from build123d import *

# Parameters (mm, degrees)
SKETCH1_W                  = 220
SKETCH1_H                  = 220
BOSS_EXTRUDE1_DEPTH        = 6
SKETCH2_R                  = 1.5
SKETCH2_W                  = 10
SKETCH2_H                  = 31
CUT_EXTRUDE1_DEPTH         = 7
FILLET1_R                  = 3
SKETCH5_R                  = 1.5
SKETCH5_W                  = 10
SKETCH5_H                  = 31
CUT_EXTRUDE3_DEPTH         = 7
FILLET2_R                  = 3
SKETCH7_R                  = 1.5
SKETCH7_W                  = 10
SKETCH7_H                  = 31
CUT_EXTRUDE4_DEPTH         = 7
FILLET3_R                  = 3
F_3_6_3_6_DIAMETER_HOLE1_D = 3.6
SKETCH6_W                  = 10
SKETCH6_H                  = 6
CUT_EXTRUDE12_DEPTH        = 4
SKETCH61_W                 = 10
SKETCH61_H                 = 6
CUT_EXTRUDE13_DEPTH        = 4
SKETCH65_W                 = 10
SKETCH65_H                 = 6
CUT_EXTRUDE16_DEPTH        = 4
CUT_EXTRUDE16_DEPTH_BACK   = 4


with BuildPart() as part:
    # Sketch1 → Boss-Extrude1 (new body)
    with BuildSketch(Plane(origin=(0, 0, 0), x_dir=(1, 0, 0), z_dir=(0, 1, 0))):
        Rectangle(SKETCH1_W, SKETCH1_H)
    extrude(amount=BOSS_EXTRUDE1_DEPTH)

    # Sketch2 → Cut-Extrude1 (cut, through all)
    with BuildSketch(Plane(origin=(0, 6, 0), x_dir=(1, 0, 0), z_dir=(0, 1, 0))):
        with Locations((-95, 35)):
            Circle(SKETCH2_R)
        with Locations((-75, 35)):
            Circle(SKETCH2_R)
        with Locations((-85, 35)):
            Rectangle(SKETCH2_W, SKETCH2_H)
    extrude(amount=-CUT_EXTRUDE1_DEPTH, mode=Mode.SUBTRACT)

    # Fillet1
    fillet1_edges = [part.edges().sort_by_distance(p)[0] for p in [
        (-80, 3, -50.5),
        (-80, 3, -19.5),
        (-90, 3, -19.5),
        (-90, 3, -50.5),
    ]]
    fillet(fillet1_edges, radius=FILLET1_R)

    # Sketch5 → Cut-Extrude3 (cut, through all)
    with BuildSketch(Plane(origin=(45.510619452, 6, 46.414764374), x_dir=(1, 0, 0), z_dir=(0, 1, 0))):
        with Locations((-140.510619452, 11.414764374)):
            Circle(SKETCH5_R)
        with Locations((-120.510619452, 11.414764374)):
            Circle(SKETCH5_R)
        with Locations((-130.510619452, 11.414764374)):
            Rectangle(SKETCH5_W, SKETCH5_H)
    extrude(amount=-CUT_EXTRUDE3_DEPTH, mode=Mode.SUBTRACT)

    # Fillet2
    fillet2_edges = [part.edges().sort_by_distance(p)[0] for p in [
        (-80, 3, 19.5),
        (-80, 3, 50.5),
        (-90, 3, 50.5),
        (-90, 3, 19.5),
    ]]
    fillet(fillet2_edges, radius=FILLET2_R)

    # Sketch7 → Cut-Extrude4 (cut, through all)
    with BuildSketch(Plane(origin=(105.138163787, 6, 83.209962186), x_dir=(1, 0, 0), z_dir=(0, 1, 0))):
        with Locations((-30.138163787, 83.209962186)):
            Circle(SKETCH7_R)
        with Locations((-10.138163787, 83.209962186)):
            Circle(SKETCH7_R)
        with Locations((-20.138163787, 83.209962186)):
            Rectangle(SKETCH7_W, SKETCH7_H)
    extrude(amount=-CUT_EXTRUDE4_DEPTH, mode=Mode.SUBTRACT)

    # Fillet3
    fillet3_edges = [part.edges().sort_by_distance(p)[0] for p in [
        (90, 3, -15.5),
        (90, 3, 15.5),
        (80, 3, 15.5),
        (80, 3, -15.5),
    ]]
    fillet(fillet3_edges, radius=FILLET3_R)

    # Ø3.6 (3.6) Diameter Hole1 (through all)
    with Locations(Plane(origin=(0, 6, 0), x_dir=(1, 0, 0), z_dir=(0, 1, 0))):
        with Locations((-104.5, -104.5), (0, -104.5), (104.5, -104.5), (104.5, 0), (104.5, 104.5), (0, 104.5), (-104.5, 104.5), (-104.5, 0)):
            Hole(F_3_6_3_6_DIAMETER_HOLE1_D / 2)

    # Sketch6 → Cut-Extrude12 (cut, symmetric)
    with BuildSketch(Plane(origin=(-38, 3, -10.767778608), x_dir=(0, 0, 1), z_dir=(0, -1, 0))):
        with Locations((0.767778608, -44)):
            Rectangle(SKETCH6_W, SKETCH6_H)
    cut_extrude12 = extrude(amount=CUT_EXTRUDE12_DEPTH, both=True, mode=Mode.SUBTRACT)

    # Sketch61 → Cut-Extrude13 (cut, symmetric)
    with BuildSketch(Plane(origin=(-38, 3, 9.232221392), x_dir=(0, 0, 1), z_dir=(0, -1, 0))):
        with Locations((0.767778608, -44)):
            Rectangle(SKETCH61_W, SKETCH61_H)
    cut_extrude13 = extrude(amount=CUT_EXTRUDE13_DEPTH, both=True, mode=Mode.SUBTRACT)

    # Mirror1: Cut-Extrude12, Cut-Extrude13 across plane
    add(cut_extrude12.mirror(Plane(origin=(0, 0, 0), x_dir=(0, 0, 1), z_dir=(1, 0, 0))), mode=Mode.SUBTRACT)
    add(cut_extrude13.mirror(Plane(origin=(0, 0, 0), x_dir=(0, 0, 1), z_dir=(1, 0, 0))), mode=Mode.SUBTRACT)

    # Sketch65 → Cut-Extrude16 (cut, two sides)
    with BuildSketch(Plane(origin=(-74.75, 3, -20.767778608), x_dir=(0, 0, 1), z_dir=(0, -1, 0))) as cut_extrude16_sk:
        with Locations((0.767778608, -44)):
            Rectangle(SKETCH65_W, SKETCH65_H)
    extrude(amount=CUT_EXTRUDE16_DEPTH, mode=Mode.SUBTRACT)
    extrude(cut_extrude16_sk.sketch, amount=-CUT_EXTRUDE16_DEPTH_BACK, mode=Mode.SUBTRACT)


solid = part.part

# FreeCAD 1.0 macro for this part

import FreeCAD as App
import Part
import Sketcher


def edges_at(feature, points):
    """Names of the edges that pass closest to the given points."""
    edges = feature.Shape.Edges
    near = lambda p: min(range(len(edges)), key=lambda i: edges[i].distToShape(Part.Vertex(*p))[0])
    return sorted({f"Edge{near(p) + 1}" for p in points})

doc = App.newDocument("Part")
body = doc.addObject("PartDesign::Body", "Body")

# Sketch on XZ plane
sketch1 = body.newObject("Sketcher::SketchObject", "Sketch")
sketch1.AttachmentSupport = (doc.getObject("XZ_Plane"), [""])
sketch1.MapMode = "FlatFace"
sketch1.addGeometry([
    Part.LineSegment(App.Vector(-110, -110, 0), App.Vector(-110, 110, 0)),
    Part.LineSegment(App.Vector(-110, 110, 0), App.Vector(110, 110, 0)),
    Part.LineSegment(App.Vector(110, 110, 0), App.Vector(110, -110, 0)),
    Part.LineSegment(App.Vector(110, -110, 0), App.Vector(-110, -110, 0)),
], False)
sketch1.addConstraint([
    Sketcher.Constraint("Coincident", 0, 2, 1, 1),
    Sketcher.Constraint("Coincident", 1, 2, 2, 1),
    Sketcher.Constraint("Coincident", 2, 2, 3, 1),
    Sketcher.Constraint("Coincident", 3, 2, 0, 1),
    Sketcher.Constraint("Vertical", 0),
    Sketcher.Constraint("Horizontal", 1),
    Sketcher.Constraint("Vertical", 2),
    Sketcher.Constraint("Horizontal", 3),
    Sketcher.Constraint("Symmetric", 0, 2, 2, 2, -1, 1),
    Sketcher.Constraint("Equal", 3, 0),
    Sketcher.Constraint("DistanceX", 1, 1, 1, 2, 220.0),
])
pad1 = body.newObject("PartDesign::Pad", "Pad")
pad1.Profile = sketch1
pad1.Length = 6
pad1.Reversed = True

# Sketch on XZ plane
sketch2 = body.newObject("Sketcher::SketchObject", "Sketch001")
sketch2.AttachmentSupport = (doc.getObject("XZ_Plane"), [""])
sketch2.MapMode = "FlatFace"
sketch2.AttachmentOffset = App.Placement(App.Vector(0, 0, -6), App.Rotation())
sketch2.addGeometry([
    Part.Circle(App.Vector(-95, -35, 0), App.Vector(0, 0, 1), 1.5),  # 0
    Part.Circle(App.Vector(-75, -35, 0), App.Vector(0, 0, 1), 1.5),  # 1
    Part.LineSegment(App.Vector(-90, -50.5, 0), App.Vector(-90, -19.5, 0)),  # 2
    Part.LineSegment(App.Vector(-90, -19.5, 0), App.Vector(-80, -19.5, 0)),  # 3
    Part.LineSegment(App.Vector(-80, -19.5, 0), App.Vector(-80, -50.5, 0)),  # 4
    Part.LineSegment(App.Vector(-80, -50.5, 0), App.Vector(-90, -50.5, 0)),  # 5
], False)
sketch2.addConstraint([
    Sketcher.Constraint("Coincident", 2, 2, 3, 1),
    Sketcher.Constraint("Coincident", 3, 2, 4, 1),
    Sketcher.Constraint("Coincident", 4, 2, 5, 1),
    Sketcher.Constraint("Coincident", 5, 2, 2, 1),
    Sketcher.Constraint("Vertical", 2),
    Sketcher.Constraint("Horizontal", 3),
    Sketcher.Constraint("Vertical", 4),
    Sketcher.Constraint("Horizontal", 5),
    Sketcher.Constraint("Equal", 0, 1),
    Sketcher.Constraint("Horizontal", 0, 3, 1, 3),
    Sketcher.Constraint("Diameter", 0, 3.0),
    Sketcher.Constraint("DistanceX", 3, 1, 3, 2, 10.0),
    Sketcher.Constraint("DistanceY", 2, 1, 2, 2, 31.0),
    Sketcher.Constraint("DistanceX", 0, 3, -1, 1, 95.0),
    Sketcher.Constraint("DistanceY", 0, 3, -1, 1, 35.0),
    Sketcher.Constraint("DistanceX", 1, 3, -1, 1, 75.0),
    Sketcher.Constraint("DistanceX", 2, 2, -1, 1, 90.0),
    Sketcher.Constraint("DistanceY", 2, 2, -1, 1, 19.5),
])
pocket1 = body.newObject("PartDesign::Pocket", "Pocket")
pocket1.Profile = sketch2
pocket1.Type = "ThroughAll"
pocket1.Reversed = True
doc.recompute()

fillet = body.newObject("PartDesign::Fillet", "Fillet")
fillet.Base = (pocket1, edges_at(pocket1, [
    (-80, 3, -50.5),
    (-80, 3, -19.5),
    (-90, 3, -19.5),
    (-90, 3, -50.5),
]))
fillet.Radius = 3

# Sketch on XZ plane
sketch3 = body.newObject("Sketcher::SketchObject", "Sketch002")
sketch3.AttachmentSupport = (doc.getObject("XZ_Plane"), [""])
sketch3.MapMode = "FlatFace"
sketch3.AttachmentOffset = App.Placement(App.Vector(0, 0, -6), App.Rotation())
sketch3.addGeometry([
    Part.Circle(App.Vector(-95, 35, 0), App.Vector(0, 0, 1), 1.5),  # 0
    Part.Circle(App.Vector(-75, 35, 0), App.Vector(0, 0, 1), 1.5),  # 1
    Part.LineSegment(App.Vector(-90, 19.5, 0), App.Vector(-90, 50.5, 0)),  # 2
    Part.LineSegment(App.Vector(-90, 50.5, 0), App.Vector(-80, 50.5, 0)),  # 3
    Part.LineSegment(App.Vector(-80, 50.5, 0), App.Vector(-80, 19.5, 0)),  # 4
    Part.LineSegment(App.Vector(-80, 19.5, 0), App.Vector(-90, 19.5, 0)),  # 5
], False)
sketch3.addConstraint([
    Sketcher.Constraint("Coincident", 2, 2, 3, 1),
    Sketcher.Constraint("Coincident", 3, 2, 4, 1),
    Sketcher.Constraint("Coincident", 4, 2, 5, 1),
    Sketcher.Constraint("Coincident", 5, 2, 2, 1),
    Sketcher.Constraint("Vertical", 2),
    Sketcher.Constraint("Horizontal", 3),
    Sketcher.Constraint("Vertical", 4),
    Sketcher.Constraint("Horizontal", 5),
    Sketcher.Constraint("Equal", 0, 1),
    Sketcher.Constraint("Horizontal", 0, 3, 1, 3),
    Sketcher.Constraint("Diameter", 0, 3.0),
    Sketcher.Constraint("DistanceX", 3, 1, 3, 2, 10.0),
    Sketcher.Constraint("DistanceY", 2, 1, 2, 2, 31.0),
    Sketcher.Constraint("DistanceX", 0, 3, -1, 1, 95.0),
    Sketcher.Constraint("DistanceY", -1, 1, 0, 3, 35.0),
    Sketcher.Constraint("DistanceX", 1, 3, -1, 1, 75.0),
    Sketcher.Constraint("DistanceX", 2, 2, -1, 1, 90.0),
    Sketcher.Constraint("DistanceY", -1, 1, 2, 2, 50.5),
])
pocket2 = body.newObject("PartDesign::Pocket", "Pocket001")
pocket2.Profile = sketch3
pocket2.Type = "ThroughAll"
pocket2.Reversed = True
doc.recompute()

fillet2 = body.newObject("PartDesign::Fillet", "Fillet001")
fillet2.Base = (pocket2, edges_at(pocket2, [
    (-80, 3, 19.5),
    (-80, 3, 50.5),
    (-90, 3, 50.5),
    (-90, 3, 19.5),
]))
fillet2.Radius = 3

# Sketch on XZ plane
sketch4 = body.newObject("Sketcher::SketchObject", "Sketch003")
sketch4.AttachmentSupport = (doc.getObject("XZ_Plane"), [""])
sketch4.MapMode = "FlatFace"
sketch4.AttachmentOffset = App.Placement(App.Vector(0, 0, -6), App.Rotation())
sketch4.addGeometry([
    Part.Circle(App.Vector(75, 0, 0), App.Vector(0, 0, 1), 1.5),  # 0
    Part.Circle(App.Vector(95, 0, 0), App.Vector(0, 0, 1), 1.5),  # 1
    Part.LineSegment(App.Vector(80, -15.5, 0), App.Vector(80, 15.5, 0)),  # 2
    Part.LineSegment(App.Vector(80, 15.5, 0), App.Vector(90, 15.5, 0)),  # 3
    Part.LineSegment(App.Vector(90, 15.5, 0), App.Vector(90, -15.5, 0)),  # 4
    Part.LineSegment(App.Vector(90, -15.5, 0), App.Vector(80, -15.5, 0)),  # 5
], False)
sketch4.addConstraint([
    Sketcher.Constraint("Coincident", 2, 2, 3, 1),
    Sketcher.Constraint("Coincident", 3, 2, 4, 1),
    Sketcher.Constraint("Coincident", 4, 2, 5, 1),
    Sketcher.Constraint("Coincident", 5, 2, 2, 1),
    Sketcher.Constraint("Vertical", 2),
    Sketcher.Constraint("Horizontal", 3),
    Sketcher.Constraint("Vertical", 4),
    Sketcher.Constraint("Horizontal", 5),
    Sketcher.Constraint("Equal", 0, 1),
    Sketcher.Constraint("PointOnObject", 0, 3, -1),
    Sketcher.Constraint("PointOnObject", 1, 3, -1),
    Sketcher.Constraint("Diameter", 0, 3.0),
    Sketcher.Constraint("DistanceX", 3, 1, 3, 2, 10.0),
    Sketcher.Constraint("DistanceY", 2, 1, 2, 2, 31.0),
    Sketcher.Constraint("DistanceX", -1, 1, 0, 3, 75.0),
    Sketcher.Constraint("DistanceX", -1, 1, 1, 3, 95.0),
    Sketcher.Constraint("DistanceX", -1, 1, 2, 2, 80.0),
    Sketcher.Constraint("DistanceY", -1, 1, 2, 2, 15.5),
])
pocket3 = body.newObject("PartDesign::Pocket", "Pocket002")
pocket3.Profile = sketch4
pocket3.Type = "ThroughAll"
pocket3.Reversed = True
doc.recompute()

fillet3 = body.newObject("PartDesign::Fillet", "Fillet002")
fillet3.Base = (pocket3, edges_at(pocket3, [
    (90, 3, -15.5),
    (90, 3, 15.5),
    (80, 3, 15.5),
    (80, 3, -15.5),
]))
fillet3.Radius = 3

# Sketch on XZ plane
sketch5 = body.newObject("Sketcher::SketchObject", "Sketch004")
sketch5.AttachmentSupport = (doc.getObject("XZ_Plane"), [""])
sketch5.MapMode = "FlatFace"
sketch5.AttachmentOffset = App.Placement(App.Vector(0, 0, -6), App.Rotation())
sketch5.addGeometry([
    Part.Circle(App.Vector(-104.5, 104.5, 0), App.Vector(0, 0, 1), 1.8),  # 0
    Part.Circle(App.Vector(0, 104.5, 0), App.Vector(0, 0, 1), 1.8),  # 1
    Part.Circle(App.Vector(104.5, 104.5, 0), App.Vector(0, 0, 1), 1.8),  # 2
    Part.Circle(App.Vector(104.5, 0, 0), App.Vector(0, 0, 1), 1.8),  # 3
    Part.Circle(App.Vector(104.5, -104.5, 0), App.Vector(0, 0, 1), 1.8),  # 4
    Part.Circle(App.Vector(0, -104.5, 0), App.Vector(0, 0, 1), 1.8),  # 5
    Part.Circle(App.Vector(-104.5, -104.5, 0), App.Vector(0, 0, 1), 1.8),  # 6
    Part.Circle(App.Vector(-104.5, 0, 0), App.Vector(0, 0, 1), 1.8),  # 7
], False)
sketch5.addConstraint([
    Sketcher.Constraint("Equal", 0, 1),
    Sketcher.Constraint("Equal", 1, 2),
    Sketcher.Constraint("Equal", 2, 3),
    Sketcher.Constraint("Equal", 3, 4),
    Sketcher.Constraint("Equal", 4, 5),
    Sketcher.Constraint("Equal", 5, 6),
    Sketcher.Constraint("Equal", 6, 7),
    Sketcher.Constraint("Symmetric", 0, 3, 4, 3, -1, 1),
    Sketcher.Constraint("Symmetric", 1, 3, 5, 3, -1, 1),
    Sketcher.Constraint("Symmetric", 2, 3, 6, 3, -1, 1),
    Sketcher.Constraint("Symmetric", 3, 3, 7, 3, -1, 1),
    Sketcher.Constraint("Symmetric", 0, 3, 2, 3, -2),
    Sketcher.Constraint("PointOnObject", 1, 3, -2),
    Sketcher.Constraint("PointOnObject", 3, 3, -1),
    Sketcher.Constraint("Horizontal", 0, 3, 1, 3),
    Sketcher.Constraint("Vertical", 2, 3, 3, 3),
    Sketcher.Constraint("Diameter", 0, 3.6),
    Sketcher.Constraint("DistanceX", 0, 3, 2, 3, 209.0),
    Sketcher.Constraint("DistanceY", 4, 3, 2, 3, 209.0),
])
doc.recompute()
hole = body.newObject("PartDesign::Hole", "Hole")
hole.Profile = sketch5
hole.ThreadType = "None"
hole.Diameter = 3.6
hole.DepthType = "ThroughAll"
hole.Reversed = True

# Sketch on XZ plane
sketch6 = body.newObject("Sketcher::SketchObject", "Sketch005")
sketch6.AttachmentSupport = (doc.getObject("XZ_Plane"), [""])
sketch6.MapMode = "FlatFace"
sketch6.AttachmentOffset = App.Placement(App.Vector(0, 0, -3), App.Rotation())
sketch6.addGeometry([
    Part.LineSegment(App.Vector(3, -15, 0), App.Vector(9, -15, 0)),
    Part.LineSegment(App.Vector(9, -15, 0), App.Vector(9, -5, 0)),
    Part.LineSegment(App.Vector(9, -5, 0), App.Vector(3, -5, 0)),
    Part.LineSegment(App.Vector(3, -5, 0), App.Vector(3, -15, 0)),
], False)
sketch6.addConstraint([
    Sketcher.Constraint("Coincident", 0, 2, 1, 1),
    Sketcher.Constraint("Coincident", 1, 2, 2, 1),
    Sketcher.Constraint("Coincident", 2, 2, 3, 1),
    Sketcher.Constraint("Coincident", 3, 2, 0, 1),
    Sketcher.Constraint("Horizontal", 0),
    Sketcher.Constraint("Vertical", 1),
    Sketcher.Constraint("Horizontal", 2),
    Sketcher.Constraint("Vertical", 3),
    Sketcher.Constraint("DistanceX", 0, 1, 0, 2, 6.0),
    Sketcher.Constraint("DistanceY", 1, 1, 1, 2, 10.0),
    Sketcher.Constraint("DistanceX", -1, 1, 0, 2, 9.0),
    Sketcher.Constraint("DistanceY", 0, 2, -1, 1, 15.0),
])
pocket4 = body.newObject("PartDesign::Pocket", "Pocket003")
pocket4.Profile = sketch6
pocket4.Length = 8
pocket4.Midplane = True

# Sketch on XZ plane
sketch7 = body.newObject("Sketcher::SketchObject", "Sketch006")
sketch7.AttachmentSupport = (doc.getObject("XZ_Plane"), [""])
sketch7.MapMode = "FlatFace"
sketch7.AttachmentOffset = App.Placement(App.Vector(0, 0, -3), App.Rotation())
sketch7.addGeometry([
    Part.LineSegment(App.Vector(3, 5, 0), App.Vector(9, 5, 0)),
    Part.LineSegment(App.Vector(9, 5, 0), App.Vector(9, 15, 0)),
    Part.LineSegment(App.Vector(9, 15, 0), App.Vector(3, 15, 0)),
    Part.LineSegment(App.Vector(3, 15, 0), App.Vector(3, 5, 0)),
], False)
sketch7.addConstraint([
    Sketcher.Constraint("Coincident", 0, 2, 1, 1),
    Sketcher.Constraint("Coincident", 1, 2, 2, 1),
    Sketcher.Constraint("Coincident", 2, 2, 3, 1),
    Sketcher.Constraint("Coincident", 3, 2, 0, 1),
    Sketcher.Constraint("Horizontal", 0),
    Sketcher.Constraint("Vertical", 1),
    Sketcher.Constraint("Horizontal", 2),
    Sketcher.Constraint("Vertical", 3),
    Sketcher.Constraint("DistanceX", 0, 1, 0, 2, 6.0),
    Sketcher.Constraint("DistanceY", 1, 1, 1, 2, 10.0),
    Sketcher.Constraint("DistanceX", -1, 1, 0, 2, 9.0),
    Sketcher.Constraint("DistanceY", -1, 1, 0, 2, 5.0),
])
pocket5 = body.newObject("PartDesign::Pocket", "Pocket004")
pocket5.Profile = sketch7
pocket5.Length = 8
pocket5.Midplane = True
doc.recompute()

mirrored = body.newObject("PartDesign::Mirrored", "Mirrored")
mirrored.Originals = [pocket4, pocket5]
mirrored.MirrorPlane = (doc.getObject("YZ_Plane"), [""])
body.Tip = mirrored

# Sketch on XZ plane
sketch8 = body.newObject("Sketcher::SketchObject", "Sketch007")
sketch8.AttachmentSupport = (doc.getObject("XZ_Plane"), [""])
sketch8.MapMode = "FlatFace"
sketch8.AttachmentOffset = App.Placement(App.Vector(0, 0, -3), App.Rotation())
sketch8.addGeometry([
    Part.LineSegment(App.Vector(-34, -25, 0), App.Vector(-28, -25, 0)),
    Part.LineSegment(App.Vector(-28, -25, 0), App.Vector(-28, -15, 0)),
    Part.LineSegment(App.Vector(-28, -15, 0), App.Vector(-34, -15, 0)),
    Part.LineSegment(App.Vector(-34, -15, 0), App.Vector(-34, -25, 0)),
], False)
sketch8.addConstraint([
    Sketcher.Constraint("Coincident", 0, 2, 1, 1),
    Sketcher.Constraint("Coincident", 1, 2, 2, 1),
    Sketcher.Constraint("Coincident", 2, 2, 3, 1),
    Sketcher.Constraint("Coincident", 3, 2, 0, 1),
    Sketcher.Constraint("Horizontal", 0),
    Sketcher.Constraint("Vertical", 1),
    Sketcher.Constraint("Horizontal", 2),
    Sketcher.Constraint("Vertical", 3),
    Sketcher.Constraint("DistanceX", 0, 1, 0, 2, 6.0),
    Sketcher.Constraint("DistanceY", 1, 1, 1, 2, 10.0),
    Sketcher.Constraint("DistanceY", 0, 2, -1, 1, 25.0),
    Sketcher.Constraint("DistanceX", 0, 2, -1, 1, 27.75),
])
pocket6 = body.newObject("PartDesign::Pocket", "Pocket005")
pocket6.Profile = sketch8
pocket6.Type = "ThroughAll"
pocket6.Midplane = True

doc.recompute()
